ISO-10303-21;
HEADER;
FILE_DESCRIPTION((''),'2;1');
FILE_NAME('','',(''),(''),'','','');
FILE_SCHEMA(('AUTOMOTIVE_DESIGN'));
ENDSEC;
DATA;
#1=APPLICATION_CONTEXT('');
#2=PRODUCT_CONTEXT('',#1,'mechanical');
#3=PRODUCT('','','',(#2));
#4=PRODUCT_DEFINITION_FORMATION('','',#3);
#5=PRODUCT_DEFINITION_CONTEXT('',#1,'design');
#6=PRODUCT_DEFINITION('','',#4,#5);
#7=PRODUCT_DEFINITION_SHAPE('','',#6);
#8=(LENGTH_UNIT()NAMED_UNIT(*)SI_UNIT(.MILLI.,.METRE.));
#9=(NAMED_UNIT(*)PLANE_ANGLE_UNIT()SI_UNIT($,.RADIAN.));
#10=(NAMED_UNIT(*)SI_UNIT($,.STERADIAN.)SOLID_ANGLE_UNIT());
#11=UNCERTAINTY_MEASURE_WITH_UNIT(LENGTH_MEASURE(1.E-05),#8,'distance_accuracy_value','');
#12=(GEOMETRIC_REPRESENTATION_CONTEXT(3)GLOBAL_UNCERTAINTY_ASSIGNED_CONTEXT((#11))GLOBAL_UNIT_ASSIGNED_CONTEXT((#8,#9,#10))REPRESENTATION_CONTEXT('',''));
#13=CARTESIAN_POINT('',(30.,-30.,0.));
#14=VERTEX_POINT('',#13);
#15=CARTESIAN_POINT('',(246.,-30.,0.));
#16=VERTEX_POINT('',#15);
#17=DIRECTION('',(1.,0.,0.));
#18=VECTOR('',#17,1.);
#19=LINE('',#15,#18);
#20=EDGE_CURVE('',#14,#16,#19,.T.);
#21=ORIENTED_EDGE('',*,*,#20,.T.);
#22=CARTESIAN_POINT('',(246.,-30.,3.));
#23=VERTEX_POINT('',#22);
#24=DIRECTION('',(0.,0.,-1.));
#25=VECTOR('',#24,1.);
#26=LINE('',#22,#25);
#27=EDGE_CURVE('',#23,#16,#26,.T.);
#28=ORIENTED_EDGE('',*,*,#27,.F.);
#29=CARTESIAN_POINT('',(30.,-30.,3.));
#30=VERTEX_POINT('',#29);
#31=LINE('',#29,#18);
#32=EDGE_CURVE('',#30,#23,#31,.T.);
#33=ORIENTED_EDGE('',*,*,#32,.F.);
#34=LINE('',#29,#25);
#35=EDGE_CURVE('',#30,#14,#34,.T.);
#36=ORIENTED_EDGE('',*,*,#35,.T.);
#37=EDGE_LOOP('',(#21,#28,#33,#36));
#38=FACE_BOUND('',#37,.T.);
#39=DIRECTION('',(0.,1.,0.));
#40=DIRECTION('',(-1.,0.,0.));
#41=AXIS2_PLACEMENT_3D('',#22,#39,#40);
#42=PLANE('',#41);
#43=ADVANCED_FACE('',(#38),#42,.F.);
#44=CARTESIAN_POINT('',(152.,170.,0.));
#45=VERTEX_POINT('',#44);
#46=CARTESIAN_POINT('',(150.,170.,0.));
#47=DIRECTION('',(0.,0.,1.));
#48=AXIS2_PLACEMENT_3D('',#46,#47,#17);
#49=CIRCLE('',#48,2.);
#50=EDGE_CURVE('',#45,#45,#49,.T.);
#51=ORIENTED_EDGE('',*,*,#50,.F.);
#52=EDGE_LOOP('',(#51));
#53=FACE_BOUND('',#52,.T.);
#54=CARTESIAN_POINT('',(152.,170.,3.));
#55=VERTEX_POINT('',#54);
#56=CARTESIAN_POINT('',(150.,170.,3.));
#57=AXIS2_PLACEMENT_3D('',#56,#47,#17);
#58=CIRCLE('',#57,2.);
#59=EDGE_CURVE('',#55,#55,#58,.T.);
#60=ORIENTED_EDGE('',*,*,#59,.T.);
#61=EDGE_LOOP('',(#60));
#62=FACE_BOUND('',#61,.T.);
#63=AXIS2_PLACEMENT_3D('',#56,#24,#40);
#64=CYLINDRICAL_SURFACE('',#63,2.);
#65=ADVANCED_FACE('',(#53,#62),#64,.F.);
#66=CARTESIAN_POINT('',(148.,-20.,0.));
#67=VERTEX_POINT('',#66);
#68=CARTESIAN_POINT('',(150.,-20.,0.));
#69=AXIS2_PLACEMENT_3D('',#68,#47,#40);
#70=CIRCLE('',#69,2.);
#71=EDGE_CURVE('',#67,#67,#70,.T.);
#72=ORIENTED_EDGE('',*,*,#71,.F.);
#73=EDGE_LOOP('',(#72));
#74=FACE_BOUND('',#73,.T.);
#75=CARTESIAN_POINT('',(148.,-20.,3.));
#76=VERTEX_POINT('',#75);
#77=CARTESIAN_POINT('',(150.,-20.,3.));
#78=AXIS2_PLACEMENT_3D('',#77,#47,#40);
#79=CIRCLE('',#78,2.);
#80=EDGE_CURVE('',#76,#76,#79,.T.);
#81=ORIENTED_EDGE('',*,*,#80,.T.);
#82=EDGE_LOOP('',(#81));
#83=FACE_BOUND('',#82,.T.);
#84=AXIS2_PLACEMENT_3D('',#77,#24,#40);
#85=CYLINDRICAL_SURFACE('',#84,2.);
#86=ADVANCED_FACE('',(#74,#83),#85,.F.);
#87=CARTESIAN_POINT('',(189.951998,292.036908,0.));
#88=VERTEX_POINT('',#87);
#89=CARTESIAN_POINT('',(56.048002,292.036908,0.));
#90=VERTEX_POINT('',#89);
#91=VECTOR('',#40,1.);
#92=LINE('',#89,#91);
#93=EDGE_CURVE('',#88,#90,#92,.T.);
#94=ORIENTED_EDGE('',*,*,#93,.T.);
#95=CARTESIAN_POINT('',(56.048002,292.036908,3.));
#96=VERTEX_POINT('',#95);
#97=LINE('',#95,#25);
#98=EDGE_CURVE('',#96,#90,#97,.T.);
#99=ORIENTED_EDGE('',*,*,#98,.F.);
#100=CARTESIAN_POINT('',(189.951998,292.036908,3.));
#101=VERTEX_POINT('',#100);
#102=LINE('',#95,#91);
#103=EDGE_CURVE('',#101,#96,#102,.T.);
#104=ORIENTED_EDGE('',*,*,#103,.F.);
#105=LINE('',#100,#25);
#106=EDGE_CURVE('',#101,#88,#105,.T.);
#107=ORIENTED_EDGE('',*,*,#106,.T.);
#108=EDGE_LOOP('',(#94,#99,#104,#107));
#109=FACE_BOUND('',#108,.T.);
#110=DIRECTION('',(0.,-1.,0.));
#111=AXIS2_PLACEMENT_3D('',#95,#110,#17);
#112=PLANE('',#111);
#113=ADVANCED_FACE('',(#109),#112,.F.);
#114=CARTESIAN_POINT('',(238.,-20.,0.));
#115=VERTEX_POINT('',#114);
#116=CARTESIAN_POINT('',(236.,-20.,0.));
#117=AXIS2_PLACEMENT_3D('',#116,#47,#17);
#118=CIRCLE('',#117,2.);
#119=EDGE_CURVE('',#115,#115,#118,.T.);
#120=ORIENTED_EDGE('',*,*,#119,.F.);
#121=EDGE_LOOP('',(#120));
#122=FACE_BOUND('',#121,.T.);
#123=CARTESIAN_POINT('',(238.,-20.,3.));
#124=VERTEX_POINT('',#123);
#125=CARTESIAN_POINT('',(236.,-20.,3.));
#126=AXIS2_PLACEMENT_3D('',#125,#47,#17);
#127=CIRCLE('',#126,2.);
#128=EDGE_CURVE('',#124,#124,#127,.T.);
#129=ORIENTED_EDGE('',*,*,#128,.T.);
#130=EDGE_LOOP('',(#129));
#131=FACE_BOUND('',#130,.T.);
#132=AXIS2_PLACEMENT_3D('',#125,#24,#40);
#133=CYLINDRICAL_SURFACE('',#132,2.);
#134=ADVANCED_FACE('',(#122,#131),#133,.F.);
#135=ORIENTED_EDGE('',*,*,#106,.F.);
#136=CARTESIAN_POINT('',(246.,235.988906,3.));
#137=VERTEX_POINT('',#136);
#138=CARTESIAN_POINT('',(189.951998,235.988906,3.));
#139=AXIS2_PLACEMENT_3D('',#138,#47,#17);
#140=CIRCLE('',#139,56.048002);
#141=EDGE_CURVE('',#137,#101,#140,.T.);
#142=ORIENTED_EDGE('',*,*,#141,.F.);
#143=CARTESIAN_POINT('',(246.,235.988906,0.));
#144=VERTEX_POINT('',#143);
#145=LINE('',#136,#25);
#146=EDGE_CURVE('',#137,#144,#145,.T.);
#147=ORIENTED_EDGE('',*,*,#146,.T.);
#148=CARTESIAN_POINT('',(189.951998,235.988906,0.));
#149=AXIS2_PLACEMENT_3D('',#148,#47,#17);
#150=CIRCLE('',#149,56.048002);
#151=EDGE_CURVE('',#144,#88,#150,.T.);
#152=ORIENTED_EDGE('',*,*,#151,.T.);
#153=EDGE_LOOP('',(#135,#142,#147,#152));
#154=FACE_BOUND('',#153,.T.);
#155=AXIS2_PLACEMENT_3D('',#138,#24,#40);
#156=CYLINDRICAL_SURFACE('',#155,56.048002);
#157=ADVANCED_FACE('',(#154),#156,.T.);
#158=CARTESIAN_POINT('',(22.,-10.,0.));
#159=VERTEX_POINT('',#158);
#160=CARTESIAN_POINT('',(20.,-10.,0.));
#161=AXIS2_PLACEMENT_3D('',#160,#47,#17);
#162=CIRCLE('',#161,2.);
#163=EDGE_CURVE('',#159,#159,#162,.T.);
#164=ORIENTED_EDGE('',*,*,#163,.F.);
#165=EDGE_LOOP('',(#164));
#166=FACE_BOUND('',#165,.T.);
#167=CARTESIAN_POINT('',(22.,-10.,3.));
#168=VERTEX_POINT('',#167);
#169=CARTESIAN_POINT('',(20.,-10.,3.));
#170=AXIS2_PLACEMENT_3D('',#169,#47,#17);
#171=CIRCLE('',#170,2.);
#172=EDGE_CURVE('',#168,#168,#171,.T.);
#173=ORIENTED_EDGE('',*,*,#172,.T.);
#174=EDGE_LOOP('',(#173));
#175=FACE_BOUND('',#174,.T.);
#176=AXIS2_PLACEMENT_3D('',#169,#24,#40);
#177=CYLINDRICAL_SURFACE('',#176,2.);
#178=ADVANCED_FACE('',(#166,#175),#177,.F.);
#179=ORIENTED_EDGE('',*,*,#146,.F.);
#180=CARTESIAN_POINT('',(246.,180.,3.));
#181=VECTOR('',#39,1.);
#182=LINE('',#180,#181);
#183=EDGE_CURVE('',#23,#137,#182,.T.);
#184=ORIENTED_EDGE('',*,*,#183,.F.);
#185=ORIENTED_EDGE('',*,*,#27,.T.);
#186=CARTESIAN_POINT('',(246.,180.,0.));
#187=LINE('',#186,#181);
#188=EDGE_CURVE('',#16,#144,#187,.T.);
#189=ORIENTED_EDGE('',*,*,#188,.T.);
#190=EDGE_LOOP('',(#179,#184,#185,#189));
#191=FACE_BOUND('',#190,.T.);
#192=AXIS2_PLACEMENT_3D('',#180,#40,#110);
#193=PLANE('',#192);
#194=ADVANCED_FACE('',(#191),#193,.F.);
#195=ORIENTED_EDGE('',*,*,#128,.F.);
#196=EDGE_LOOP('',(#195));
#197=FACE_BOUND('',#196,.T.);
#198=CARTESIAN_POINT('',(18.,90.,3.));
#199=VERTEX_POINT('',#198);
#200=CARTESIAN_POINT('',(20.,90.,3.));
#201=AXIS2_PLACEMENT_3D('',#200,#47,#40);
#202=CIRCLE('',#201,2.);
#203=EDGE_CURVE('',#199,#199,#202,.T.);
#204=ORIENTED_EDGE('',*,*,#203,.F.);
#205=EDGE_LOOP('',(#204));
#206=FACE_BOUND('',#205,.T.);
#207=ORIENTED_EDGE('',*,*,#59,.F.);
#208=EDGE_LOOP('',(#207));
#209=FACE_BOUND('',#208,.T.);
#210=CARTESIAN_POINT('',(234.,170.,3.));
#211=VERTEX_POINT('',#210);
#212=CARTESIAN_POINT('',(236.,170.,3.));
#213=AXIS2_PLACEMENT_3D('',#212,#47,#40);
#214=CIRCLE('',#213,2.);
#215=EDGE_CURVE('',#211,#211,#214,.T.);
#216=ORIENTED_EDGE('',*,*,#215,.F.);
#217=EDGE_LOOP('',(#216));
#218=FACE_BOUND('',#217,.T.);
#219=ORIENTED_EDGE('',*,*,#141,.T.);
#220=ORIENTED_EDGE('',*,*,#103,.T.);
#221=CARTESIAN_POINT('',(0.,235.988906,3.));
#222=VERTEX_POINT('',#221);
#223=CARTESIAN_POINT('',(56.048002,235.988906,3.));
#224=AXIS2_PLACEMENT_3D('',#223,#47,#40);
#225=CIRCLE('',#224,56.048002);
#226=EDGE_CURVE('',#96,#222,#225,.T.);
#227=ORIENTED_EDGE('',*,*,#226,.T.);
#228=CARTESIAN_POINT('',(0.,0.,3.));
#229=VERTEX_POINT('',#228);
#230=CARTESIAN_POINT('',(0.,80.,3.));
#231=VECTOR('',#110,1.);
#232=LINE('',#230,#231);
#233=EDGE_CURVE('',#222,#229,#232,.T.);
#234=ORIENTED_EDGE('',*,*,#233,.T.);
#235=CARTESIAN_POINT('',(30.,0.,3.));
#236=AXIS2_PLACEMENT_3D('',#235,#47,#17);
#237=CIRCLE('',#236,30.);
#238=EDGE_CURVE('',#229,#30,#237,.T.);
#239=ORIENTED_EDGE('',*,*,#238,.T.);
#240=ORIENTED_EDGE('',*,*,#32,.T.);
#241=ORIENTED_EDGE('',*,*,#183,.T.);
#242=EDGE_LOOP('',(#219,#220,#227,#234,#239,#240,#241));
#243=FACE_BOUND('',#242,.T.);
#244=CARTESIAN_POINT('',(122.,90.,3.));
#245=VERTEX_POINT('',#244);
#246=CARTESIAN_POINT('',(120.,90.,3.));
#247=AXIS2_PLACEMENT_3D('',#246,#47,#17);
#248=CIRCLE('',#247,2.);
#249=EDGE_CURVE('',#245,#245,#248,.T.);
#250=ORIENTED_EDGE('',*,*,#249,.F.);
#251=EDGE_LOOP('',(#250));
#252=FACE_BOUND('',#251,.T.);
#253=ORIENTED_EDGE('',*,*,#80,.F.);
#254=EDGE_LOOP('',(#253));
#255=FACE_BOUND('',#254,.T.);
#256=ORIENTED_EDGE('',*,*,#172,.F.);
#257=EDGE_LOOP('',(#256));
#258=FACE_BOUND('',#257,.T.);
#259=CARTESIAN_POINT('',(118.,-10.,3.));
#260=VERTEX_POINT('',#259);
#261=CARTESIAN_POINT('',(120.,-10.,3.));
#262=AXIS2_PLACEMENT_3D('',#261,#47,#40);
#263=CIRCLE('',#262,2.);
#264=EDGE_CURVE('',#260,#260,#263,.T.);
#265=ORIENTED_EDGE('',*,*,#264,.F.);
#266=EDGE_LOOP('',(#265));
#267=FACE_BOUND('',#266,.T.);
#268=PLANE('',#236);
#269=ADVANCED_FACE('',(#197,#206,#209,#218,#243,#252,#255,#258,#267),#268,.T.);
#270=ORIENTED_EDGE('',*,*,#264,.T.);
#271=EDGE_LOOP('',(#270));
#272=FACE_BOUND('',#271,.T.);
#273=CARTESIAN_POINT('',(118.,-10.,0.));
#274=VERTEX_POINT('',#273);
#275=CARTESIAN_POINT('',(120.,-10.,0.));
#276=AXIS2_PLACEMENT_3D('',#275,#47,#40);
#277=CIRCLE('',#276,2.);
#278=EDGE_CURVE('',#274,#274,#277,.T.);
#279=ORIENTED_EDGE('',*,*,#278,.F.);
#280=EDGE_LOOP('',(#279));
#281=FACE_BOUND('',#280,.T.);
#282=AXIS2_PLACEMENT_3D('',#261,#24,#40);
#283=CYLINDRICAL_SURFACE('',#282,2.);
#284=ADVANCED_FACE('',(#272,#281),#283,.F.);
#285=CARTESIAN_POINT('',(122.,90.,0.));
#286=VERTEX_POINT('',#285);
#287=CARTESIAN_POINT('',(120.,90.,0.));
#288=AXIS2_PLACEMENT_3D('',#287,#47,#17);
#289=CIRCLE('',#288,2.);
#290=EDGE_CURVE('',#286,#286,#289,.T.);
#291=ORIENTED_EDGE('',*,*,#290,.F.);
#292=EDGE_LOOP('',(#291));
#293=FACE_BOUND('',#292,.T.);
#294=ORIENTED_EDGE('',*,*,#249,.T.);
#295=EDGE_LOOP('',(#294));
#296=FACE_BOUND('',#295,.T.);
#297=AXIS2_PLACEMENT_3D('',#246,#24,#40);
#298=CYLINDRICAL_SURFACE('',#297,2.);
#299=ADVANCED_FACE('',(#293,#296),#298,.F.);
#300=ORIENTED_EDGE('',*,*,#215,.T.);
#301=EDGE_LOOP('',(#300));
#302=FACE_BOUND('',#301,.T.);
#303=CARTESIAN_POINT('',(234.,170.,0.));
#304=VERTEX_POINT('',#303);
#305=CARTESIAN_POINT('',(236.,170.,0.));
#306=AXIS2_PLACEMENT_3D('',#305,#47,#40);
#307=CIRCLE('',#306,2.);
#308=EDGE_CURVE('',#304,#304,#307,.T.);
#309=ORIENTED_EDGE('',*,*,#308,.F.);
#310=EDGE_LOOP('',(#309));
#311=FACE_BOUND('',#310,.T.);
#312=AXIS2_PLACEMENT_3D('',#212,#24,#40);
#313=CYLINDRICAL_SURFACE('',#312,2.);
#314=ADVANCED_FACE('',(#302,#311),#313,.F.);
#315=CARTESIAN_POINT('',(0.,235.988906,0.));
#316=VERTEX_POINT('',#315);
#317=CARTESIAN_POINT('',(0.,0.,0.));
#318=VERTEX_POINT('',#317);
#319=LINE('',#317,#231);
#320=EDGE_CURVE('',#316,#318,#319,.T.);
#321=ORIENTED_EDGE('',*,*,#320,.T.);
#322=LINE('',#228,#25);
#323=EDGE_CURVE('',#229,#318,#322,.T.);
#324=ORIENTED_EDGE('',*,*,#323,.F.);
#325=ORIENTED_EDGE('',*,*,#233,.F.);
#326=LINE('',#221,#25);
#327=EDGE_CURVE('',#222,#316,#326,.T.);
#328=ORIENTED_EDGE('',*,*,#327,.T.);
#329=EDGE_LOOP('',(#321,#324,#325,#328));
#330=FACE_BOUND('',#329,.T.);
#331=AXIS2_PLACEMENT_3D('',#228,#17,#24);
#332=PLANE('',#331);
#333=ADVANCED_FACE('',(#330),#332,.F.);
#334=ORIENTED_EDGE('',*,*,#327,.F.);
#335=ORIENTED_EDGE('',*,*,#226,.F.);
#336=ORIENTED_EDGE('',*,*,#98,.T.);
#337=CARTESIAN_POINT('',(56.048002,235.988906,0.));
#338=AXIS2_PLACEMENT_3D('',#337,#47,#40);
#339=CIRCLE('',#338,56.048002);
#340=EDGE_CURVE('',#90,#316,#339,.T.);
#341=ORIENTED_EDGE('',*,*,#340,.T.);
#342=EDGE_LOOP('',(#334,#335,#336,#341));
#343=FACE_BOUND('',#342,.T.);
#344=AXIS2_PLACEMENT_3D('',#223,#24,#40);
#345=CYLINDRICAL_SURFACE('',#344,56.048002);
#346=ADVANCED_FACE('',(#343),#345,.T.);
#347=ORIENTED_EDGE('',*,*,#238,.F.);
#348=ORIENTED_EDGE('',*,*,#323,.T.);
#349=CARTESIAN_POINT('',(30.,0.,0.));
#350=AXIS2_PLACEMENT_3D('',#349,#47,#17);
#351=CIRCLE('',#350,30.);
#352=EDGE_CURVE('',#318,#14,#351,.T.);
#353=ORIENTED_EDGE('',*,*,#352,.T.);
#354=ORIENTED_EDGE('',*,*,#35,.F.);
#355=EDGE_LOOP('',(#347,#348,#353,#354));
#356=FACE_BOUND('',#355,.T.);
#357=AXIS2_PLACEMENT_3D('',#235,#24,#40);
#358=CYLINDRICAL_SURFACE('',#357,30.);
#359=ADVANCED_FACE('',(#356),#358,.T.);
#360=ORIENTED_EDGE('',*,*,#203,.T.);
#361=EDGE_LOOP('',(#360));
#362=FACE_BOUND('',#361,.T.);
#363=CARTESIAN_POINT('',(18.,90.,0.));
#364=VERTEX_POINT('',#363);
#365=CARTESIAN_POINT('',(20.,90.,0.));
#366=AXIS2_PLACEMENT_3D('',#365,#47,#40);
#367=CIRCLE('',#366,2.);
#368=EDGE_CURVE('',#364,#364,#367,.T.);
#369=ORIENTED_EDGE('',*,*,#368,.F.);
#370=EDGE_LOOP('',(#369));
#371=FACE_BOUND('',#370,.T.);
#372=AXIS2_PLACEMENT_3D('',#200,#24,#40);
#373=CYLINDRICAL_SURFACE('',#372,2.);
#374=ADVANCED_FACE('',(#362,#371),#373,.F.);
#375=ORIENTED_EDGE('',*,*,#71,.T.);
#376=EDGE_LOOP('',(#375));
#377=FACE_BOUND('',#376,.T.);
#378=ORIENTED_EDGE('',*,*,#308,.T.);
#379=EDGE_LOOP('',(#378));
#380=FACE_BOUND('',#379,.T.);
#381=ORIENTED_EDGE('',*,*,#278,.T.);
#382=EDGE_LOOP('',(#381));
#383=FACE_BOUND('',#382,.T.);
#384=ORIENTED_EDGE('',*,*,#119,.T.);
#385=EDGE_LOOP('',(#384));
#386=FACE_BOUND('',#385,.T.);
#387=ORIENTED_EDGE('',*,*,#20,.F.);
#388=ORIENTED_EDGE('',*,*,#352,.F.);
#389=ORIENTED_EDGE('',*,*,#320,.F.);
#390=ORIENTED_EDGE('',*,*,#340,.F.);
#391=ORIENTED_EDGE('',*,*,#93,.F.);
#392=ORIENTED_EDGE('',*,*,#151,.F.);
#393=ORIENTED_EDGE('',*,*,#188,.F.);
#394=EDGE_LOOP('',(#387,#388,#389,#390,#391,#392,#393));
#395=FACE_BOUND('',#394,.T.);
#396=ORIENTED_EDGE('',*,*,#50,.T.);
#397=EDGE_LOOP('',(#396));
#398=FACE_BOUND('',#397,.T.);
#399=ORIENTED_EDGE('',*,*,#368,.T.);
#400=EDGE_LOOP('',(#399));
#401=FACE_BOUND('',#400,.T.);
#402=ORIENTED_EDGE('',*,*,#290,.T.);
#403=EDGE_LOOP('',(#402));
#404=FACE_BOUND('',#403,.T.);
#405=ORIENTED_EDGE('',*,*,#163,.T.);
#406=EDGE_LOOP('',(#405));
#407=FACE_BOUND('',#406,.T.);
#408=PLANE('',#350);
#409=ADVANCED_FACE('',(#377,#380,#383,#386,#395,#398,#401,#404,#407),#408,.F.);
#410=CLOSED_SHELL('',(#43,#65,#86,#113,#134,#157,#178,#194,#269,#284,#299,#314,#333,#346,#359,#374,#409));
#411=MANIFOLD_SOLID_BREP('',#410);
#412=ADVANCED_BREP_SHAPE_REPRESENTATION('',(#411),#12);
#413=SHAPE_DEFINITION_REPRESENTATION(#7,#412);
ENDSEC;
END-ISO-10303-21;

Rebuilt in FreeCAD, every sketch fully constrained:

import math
import FreeCAD as App
import Part
import Sketcher
Q = App.Units.Quantity

doc = App.newDocument("Part")
body = doc.addObject("PartDesign::Body", "Body")

# Sketch on XY plane
sketch1 = doc.addObject("Sketcher::SketchObject", "Sketch")
body.addObject(sketch1)
sketch1.AttachmentSupport = (doc.XY_Plane, [""])
sketch1.MapMode = "FlatFace"
sketch1.addGeometry(Part.LineSegment(App.Vector(0, 235.988906, 0), App.Vector(0, 0, 0)), False)
sketch1.addGeometry(Part.ArcOfCircle(Part.Circle(App.Vector(30, 0, 0), App.Vector(0, 0, 1), 30), math.radians(180), math.radians(270)), False)
sketch1.addGeometry(Part.LineSegment(App.Vector(30, -30, 0), App.Vector(246, -30, 0)), False)
sketch1.addGeometry(Part.LineSegment(App.Vector(246, -30, 0), App.Vector(246, 235.988906, 0)), False)
sketch1.addGeometry(Part.ArcOfCircle(Part.Circle(App.Vector(189.951998, 235.988906, 0), App.Vector(0, 0, 1), 56.048002), math.radians(0), math.radians(90)), False)
sketch1.addGeometry(Part.LineSegment(App.Vector(189.951998, 292.036908, 0), App.Vector(56.048002, 292.036908, 0)), False)
sketch1.addGeometry(Part.ArcOfCircle(Part.Circle(App.Vector(56.048002, 235.988906, 0), App.Vector(0, 0, 1), 56.048002), math.radians(90), math.radians(180)), False)
sketch1.addGeometry(Part.Circle(App.Vector(236, -20, 0), App.Vector(0, 0, 1), 2), False)
sketch1.addGeometry(Part.Circle(App.Vector(150, -20, 0), App.Vector(0, 0, 1), 2), False)
sketch1.addGeometry(Part.Circle(App.Vector(120, -10, 0), App.Vector(0, 0, 1), 2), False)
sketch1.addGeometry(Part.Circle(App.Vector(20, -10, 0), App.Vector(0, 0, 1), 2), False)
sketch1.addGeometry(Part.Circle(App.Vector(236, 170, 0), App.Vector(0, 0, 1), 2), False)
sketch1.addGeometry(Part.Circle(App.Vector(150, 170, 0), App.Vector(0, 0, 1), 2), False)
sketch1.addGeometry(Part.Circle(App.Vector(120, 90, 0), App.Vector(0, 0, 1), 2), False)
sketch1.addGeometry(Part.Circle(App.Vector(20, 90, 0), App.Vector(0, 0, 1), 2), False)
sketch1.addConstraint(Sketcher.Constraint("Tangent", 0, 2, 1, 1))
sketch1.addConstraint(Sketcher.Constraint("Tangent", 1, 2, 2, 1))
sketch1.addConstraint(Sketcher.Constraint("Coincident", 2, 2, 3, 1))
sketch1.addConstraint(Sketcher.Constraint("Tangent", 3, 2, 4, 1))
sketch1.addConstraint(Sketcher.Constraint("Tangent", 4, 2, 5, 1))
sketch1.addConstraint(Sketcher.Constraint("Tangent", 5, 2, 6, 1))
sketch1.addConstraint(Sketcher.Constraint("Tangent", 6, 2, 0, 1))
sketch1.addConstraint(Sketcher.Constraint("Vertical", 0))
sketch1.addConstraint(Sketcher.Constraint("Horizontal", 2))
sketch1.addConstraint(Sketcher.Constraint("Vertical", 3))
sketch1.addConstraint(Sketcher.Constraint("Horizontal", 5))
sketch1.addConstraint(Sketcher.Constraint("Coincident", 0, 2, -1, 1))
sketch1.addConstraint(Sketcher.Constraint("Equal", 4, 6))
sketch1.addConstraint(Sketcher.Constraint("Equal", 7, 8))
sketch1.addConstraint(Sketcher.Constraint("Equal", 8, 9))
sketch1.addConstraint(Sketcher.Constraint("Equal", 9, 10))
sketch1.addConstraint(Sketcher.Constraint("Equal", 10, 11))
sketch1.addConstraint(Sketcher.Constraint("Equal", 11, 12))
sketch1.addConstraint(Sketcher.Constraint("Equal", 12, 13))
sketch1.addConstraint(Sketcher.Constraint("Equal", 13, 14))
sketch1.addConstraint(Sketcher.Constraint("Horizontal", 7, 3, 8, 3))
sketch1.addConstraint(Sketcher.Constraint("Horizontal", 9, 3, 10, 3))
sketch1.addConstraint(Sketcher.Constraint("Horizontal", 11, 3, 12, 3))
sketch1.addConstraint(Sketcher.Constraint("Horizontal", 13, 3, 14, 3))
sketch1.addConstraint(Sketcher.Constraint("Vertical", 7, 3, 11, 3))
sketch1.addConstraint(Sketcher.Constraint("Vertical", 8, 3, 12, 3))
sketch1.addConstraint(Sketcher.Constraint("Vertical", 9, 3, 13, 3))
sketch1.addConstraint(Sketcher.Constraint("Vertical", 10, 3, 14, 3))
sketch1.addConstraint(Sketcher.Constraint("Diameter", 7, Q("4 mm")))
sketch1.addConstraint(Sketcher.Constraint("Radius", 1, Q("30 mm")))
sketch1.addConstraint(Sketcher.Constraint("DistanceX", 2, 1, 2, 2, Q("216 mm")))
sketch1.addConstraint(Sketcher.Constraint("DistanceX", -1, 1, 7, 3, Q("236 mm")))
sketch1.addConstraint(Sketcher.Constraint("DistanceY", 7, 3, -1, 1, Q("20 mm")))
sketch1.addConstraint(Sketcher.Constraint("DistanceX", -1, 1, 8, 3, Q("150 mm")))
sketch1.addConstraint(Sketcher.Constraint("DistanceX", -1, 1, 9, 3, Q("120 mm")))
sketch1.addConstraint(Sketcher.Constraint("DistanceY", 9, 3, -1, 1, Q("10 mm")))
sketch1.addConstraint(Sketcher.Constraint("DistanceX", -1, 1, 10, 3, Q("20 mm")))
sketch1.addConstraint(Sketcher.Constraint("DistanceY", -1, 1, 11, 3, Q("170 mm")))
sketch1.addConstraint(Sketcher.Constraint("DistanceY", -1, 1, 13, 3, Q("90 mm")))
sketch1.addConstraint(Sketcher.Constraint("Radius", 4, Q("56.048002 mm")))
sketch1.addConstraint(Sketcher.Constraint("DistanceY", 0, 2, 0, 1, Q("235.988906 mm")))
pad1 = doc.addObject("PartDesign::Pad", "Pad")
body.addObject(pad1)
pad1.Profile = sketch1
pad1.Length = 3

doc.recompute()
